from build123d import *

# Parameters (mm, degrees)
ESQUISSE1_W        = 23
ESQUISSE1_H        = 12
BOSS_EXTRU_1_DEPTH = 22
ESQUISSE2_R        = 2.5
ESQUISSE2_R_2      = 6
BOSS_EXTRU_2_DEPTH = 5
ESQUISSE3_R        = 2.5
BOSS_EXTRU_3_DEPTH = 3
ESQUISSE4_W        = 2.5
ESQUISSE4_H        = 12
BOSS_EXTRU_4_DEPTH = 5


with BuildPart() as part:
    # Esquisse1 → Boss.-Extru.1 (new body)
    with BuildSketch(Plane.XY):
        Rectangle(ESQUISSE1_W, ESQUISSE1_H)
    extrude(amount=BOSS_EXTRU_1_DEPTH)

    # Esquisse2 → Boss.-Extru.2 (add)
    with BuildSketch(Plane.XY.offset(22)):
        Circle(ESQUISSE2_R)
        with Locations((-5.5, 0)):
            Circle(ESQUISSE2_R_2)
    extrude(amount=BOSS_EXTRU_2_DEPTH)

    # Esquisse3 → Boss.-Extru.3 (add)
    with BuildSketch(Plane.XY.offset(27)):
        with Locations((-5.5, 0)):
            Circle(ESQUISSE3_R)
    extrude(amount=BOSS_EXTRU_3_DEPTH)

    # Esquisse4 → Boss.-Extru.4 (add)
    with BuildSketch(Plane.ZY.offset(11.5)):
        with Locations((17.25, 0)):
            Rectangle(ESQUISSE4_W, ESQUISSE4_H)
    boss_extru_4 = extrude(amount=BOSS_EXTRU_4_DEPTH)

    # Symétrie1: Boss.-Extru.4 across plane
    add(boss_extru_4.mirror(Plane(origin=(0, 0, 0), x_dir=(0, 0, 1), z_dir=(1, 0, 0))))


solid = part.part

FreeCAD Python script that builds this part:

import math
import FreeCAD as App
import Part
import Sketcher

V = App.Vector
Q = App.Units.Quantity

doc = App.newDocument("Part")
body = doc.addObject("PartDesign::Body", "Body")

# Sketch on XY plane
sketch1 = doc.addObject("Sketcher::SketchObject", "Sketch")
body.addObject(sketch1)
sketch1.AttachmentSupport = (doc.XY_Plane, [""])
sketch1.MapMode = "FlatFace"
sketch1.addGeometry(Part.LineSegment(V(-11.5, 6, 0), V(-11.5, -6, 0)), False)
sketch1.addGeometry(Part.LineSegment(V(-11.5, -6, 0), V(11.5, -6, 0)), False)
sketch1.addGeometry(Part.LineSegment(V(11.5, -6, 0), V(11.5, 6, 0)), False)
sketch1.addGeometry(Part.LineSegment(V(11.5, 6, 0), V(-11.5, 6, 0)), False)
sketch1.addConstraint(Sketcher.Constraint("Coincident", 0, 2, 1, 1))
sketch1.addConstraint(Sketcher.Constraint("Coincident", 1, 2, 2, 1))
sketch1.addConstraint(Sketcher.Constraint("Coincident", 2, 2, 3, 1))
sketch1.addConstraint(Sketcher.Constraint("Coincident", 3, 2, 0, 1))
sketch1.addConstraint(Sketcher.Constraint("Vertical", 0))
sketch1.addConstraint(Sketcher.Constraint("Horizontal", 1))
sketch1.addConstraint(Sketcher.Constraint("Vertical", 2))
sketch1.addConstraint(Sketcher.Constraint("Horizontal", 3))
sketch1.addConstraint(Sketcher.Constraint("Symmetric", 0, 2, 2, 2, -1, 1))
sketch1.addConstraint(Sketcher.Constraint("DistanceX", 1, 1, 1, 2, Q("23 mm")))
sketch1.addConstraint(Sketcher.Constraint("DistanceY", 0, 2, 0, 1, Q("12 mm")))
pad1 = doc.addObject("PartDesign::Pad", "Pad")
body.addObject(pad1)
pad1.Profile = sketch1
pad1.Length = 22

# Sketch on XY plane
sketch2 = doc.addObject("Sketcher::SketchObject", "Sketch001")
body.addObject(sketch2)
sketch2.AttachmentSupport = (doc.XY_Plane, [""])
sketch2.MapMode = "FlatFace"
sketch2.AttachmentOffset = App.Placement(V(0, 0, 22), App.Rotation())
sketch2.addGeometry(Part.ArcOfCircle(Part.Circle(V(-5.5, 0, 0), V(0, 0, 1), 6), math.radians(24.619977), math.radians(335.380023)), False)
sketch2.addGeometry(Part.ArcOfCircle(Part.Circle(V(0, 0, 0), V(0, 0, 1), 2.5), math.radians(-91.041799), math.radians(91.041799)), False)
sketch2.addConstraint(Sketcher.Constraint("Coincident", 0, 1, 1, 2))
sketch2.addConstraint(Sketcher.Constraint("Coincident", 1, 1, 0, 2))
sketch2.addConstraint(Sketcher.Constraint("Coincident", 1, 3, -1, 1))
sketch2.addConstraint(Sketcher.Constraint("PointOnObject", 0, 3, -1))
sketch2.addConstraint(Sketcher.Constraint("Radius", 0, Q("6 mm")))
sketch2.addConstraint(Sketcher.Constraint("Radius", 1, Q("2.5 mm")))
sketch2.addConstraint(Sketcher.Constraint("DistanceX", 0, 3, -1, 1, Q("5.5 mm")))
pad2 = doc.addObject("PartDesign::Pad", "Pad001")
body.addObject(pad2)
pad2.Profile = sketch2
pad2.Length = 5

# Sketch on XY plane
sketch3 = doc.addObject("Sketcher::SketchObject", "Sketch002")
body.addObject(sketch3)
sketch3.AttachmentSupport = (doc.XY_Plane, [""])
sketch3.MapMode = "FlatFace"
sketch3.AttachmentOffset = App.Placement(V(0, 0, 27), App.Rotation())
sketch3.addGeometry(Part.Circle(V(-5.5, 0, 0), V(0, 0, 1), 2.5), False)
sketch3.addConstraint(Sketcher.Constraint("PointOnObject", 0, 3, -1))
sketch3.addConstraint(Sketcher.Constraint("Diameter", 0, Q("5 mm")))
sketch3.addConstraint(Sketcher.Constraint("DistanceX", 0, 3, -1, 1, Q("5.5 mm")))
pad3 = doc.addObject("PartDesign::Pad", "Pad002")
body.addObject(pad3)
pad3.Profile = sketch3
pad3.Length = 3

# Sketch on YZ plane
sketch4 = doc.addObject("Sketcher::SketchObject", "Sketch003")
body.addObject(sketch4)
sketch4.AttachmentSupport = (doc.YZ_Plane, [""])
sketch4.MapMode = "FlatFace"
sketch4.AttachmentOffset = App.Placement(V(0, 0, -11.5), App.Rotation())
sketch4.addGeometry(Part.LineSegment(V(6, 16, 0), V(-6, 16, 0)), False)
sketch4.addGeometry(Part.LineSegment(V(-6, 16, 0), V(-6, 18.5, 0)), False)
sketch4.addGeometry(Part.LineSegment(V(-6, 18.5, 0), V(6, 18.5, 0)), False)
sketch4.addGeometry(Part.LineSegment(V(6, 18.5, 0), V(6, 16, 0)), False)
sketch4.addConstraint(Sketcher.Constraint("Coincident", 0, 2, 1, 1))
sketch4.addConstraint(Sketcher.Constraint("Coincident", 1, 2, 2, 1))
sketch4.addConstraint(Sketcher.Constraint("Coincident", 2, 2, 3, 1))
sketch4.addConstraint(Sketcher.Constraint("Coincident", 3, 2, 0, 1))
sketch4.addConstraint(Sketcher.Constraint("Horizontal", 0))
sketch4.addConstraint(Sketcher.Constraint("Vertical", 1))
sketch4.addConstraint(Sketcher.Constraint("Horizontal", 2))
sketch4.addConstraint(Sketcher.Constraint("Vertical", 3))
sketch4.addConstraint(Sketcher.Constraint("DistanceX", 0, 2, 0, 1, Q("12 mm")))
sketch4.addConstraint(Sketcher.Constraint("DistanceY", 1, 1, 1, 2, Q("2.5 mm")))
sketch4.addConstraint(Sketcher.Constraint("DistanceX", 0, 2, -1, 1, Q("6 mm")))
sketch4.addConstraint(Sketcher.Constraint("DistanceY", -1, 1, 0, 2, Q("16 mm")))
pad4 = doc.addObject("PartDesign::Pad", "Pad003")
body.addObject(pad4)
pad4.Profile = sketch4
pad4.Length = 5
pad4.Reversed = True
doc.recompute()

mirrored = doc.addObject("PartDesign::Mirrored", "Mirrored")
body.addObject(mirrored)
mirrored.Originals = [pad4]
mirrored.MirrorPlane = (doc.YZ_Plane, [""])
body.Tip = mirrored

doc.recompute()
